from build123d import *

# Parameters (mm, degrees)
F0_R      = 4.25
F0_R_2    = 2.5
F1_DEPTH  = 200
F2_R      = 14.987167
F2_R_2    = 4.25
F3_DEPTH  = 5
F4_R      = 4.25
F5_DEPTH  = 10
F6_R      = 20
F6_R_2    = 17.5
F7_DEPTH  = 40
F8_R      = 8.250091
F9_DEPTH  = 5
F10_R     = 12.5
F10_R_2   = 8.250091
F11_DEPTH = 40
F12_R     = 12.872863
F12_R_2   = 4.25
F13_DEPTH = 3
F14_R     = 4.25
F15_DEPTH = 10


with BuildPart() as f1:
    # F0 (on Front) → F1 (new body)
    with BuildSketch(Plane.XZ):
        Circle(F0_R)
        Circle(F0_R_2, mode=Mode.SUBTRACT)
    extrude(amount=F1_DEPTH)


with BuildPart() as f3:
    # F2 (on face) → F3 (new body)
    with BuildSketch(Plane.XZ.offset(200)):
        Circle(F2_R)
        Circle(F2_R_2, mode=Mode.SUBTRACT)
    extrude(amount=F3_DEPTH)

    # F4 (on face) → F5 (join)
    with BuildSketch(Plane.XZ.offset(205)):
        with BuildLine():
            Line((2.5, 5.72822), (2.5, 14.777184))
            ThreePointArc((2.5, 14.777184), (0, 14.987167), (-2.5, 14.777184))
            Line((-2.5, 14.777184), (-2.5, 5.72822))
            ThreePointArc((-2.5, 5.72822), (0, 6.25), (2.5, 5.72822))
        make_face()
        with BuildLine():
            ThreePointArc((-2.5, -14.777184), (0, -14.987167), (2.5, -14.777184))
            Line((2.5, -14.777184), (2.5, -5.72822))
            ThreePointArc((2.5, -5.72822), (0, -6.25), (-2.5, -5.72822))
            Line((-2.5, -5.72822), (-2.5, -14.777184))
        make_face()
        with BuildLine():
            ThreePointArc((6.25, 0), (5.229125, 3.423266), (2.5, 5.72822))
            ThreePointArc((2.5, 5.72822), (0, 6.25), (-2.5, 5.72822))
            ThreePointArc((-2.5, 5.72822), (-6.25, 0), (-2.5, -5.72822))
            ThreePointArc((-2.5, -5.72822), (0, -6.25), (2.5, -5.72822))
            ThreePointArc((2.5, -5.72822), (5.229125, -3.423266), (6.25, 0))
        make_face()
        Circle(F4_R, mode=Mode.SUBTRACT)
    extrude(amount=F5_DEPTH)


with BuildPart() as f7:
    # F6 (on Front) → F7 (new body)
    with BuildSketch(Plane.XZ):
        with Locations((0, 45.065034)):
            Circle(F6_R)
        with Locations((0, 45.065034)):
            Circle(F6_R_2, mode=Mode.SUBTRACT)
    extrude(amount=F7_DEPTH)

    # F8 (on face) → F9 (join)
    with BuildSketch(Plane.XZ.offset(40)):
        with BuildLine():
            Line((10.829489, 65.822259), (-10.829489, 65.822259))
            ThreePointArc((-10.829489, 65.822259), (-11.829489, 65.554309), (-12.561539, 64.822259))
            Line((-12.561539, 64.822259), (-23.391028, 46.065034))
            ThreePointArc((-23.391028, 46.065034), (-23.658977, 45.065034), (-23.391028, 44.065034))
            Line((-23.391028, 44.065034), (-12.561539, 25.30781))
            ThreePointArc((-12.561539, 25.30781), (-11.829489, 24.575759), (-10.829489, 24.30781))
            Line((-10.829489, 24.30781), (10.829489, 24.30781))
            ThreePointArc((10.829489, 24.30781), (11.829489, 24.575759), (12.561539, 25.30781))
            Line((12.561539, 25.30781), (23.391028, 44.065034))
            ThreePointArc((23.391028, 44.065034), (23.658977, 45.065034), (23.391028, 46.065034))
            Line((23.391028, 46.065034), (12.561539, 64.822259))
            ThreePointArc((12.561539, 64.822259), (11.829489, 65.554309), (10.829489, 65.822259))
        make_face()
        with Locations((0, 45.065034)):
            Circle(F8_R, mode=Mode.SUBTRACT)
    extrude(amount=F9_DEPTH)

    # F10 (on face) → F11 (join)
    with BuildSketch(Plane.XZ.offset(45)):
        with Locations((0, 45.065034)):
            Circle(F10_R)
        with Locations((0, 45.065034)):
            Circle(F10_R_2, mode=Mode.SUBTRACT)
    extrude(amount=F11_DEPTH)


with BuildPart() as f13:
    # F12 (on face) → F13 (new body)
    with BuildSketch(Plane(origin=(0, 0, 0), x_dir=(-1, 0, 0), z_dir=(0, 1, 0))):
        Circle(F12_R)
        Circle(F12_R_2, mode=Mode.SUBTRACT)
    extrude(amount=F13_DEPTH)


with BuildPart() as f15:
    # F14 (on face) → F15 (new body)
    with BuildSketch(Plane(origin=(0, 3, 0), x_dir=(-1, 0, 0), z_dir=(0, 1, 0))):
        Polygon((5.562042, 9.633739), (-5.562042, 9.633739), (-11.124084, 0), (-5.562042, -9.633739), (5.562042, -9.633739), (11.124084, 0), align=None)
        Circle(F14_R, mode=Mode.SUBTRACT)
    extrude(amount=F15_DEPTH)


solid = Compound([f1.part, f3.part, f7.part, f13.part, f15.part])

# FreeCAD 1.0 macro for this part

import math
import FreeCAD as App
import Part
import Sketcher
Q = App.Units.Quantity

doc = App.newDocument("Part")
body = doc.addObject("PartDesign::Body", "Body")

sketch1 = doc.addObject("Sketcher::SketchObject", "Sketch")
body.addObject(sketch1)
sketch1.AttachmentSupport = (doc.XZ_Plane, [""])
sketch1.MapMode = "FlatFace"
sketch1.addGeometry([
    Part.Circle(App.Vector(0, 0, 0), App.Vector(0, 0, 1), 4.2),
    Part.Circle(App.Vector(0, 0, 0), App.Vector(0, 0, 1), 2.5),
], False)
sketch1.addConstraint([
    Sketcher.Constraint("Coincident", 0, 3, -1, 1),
    Sketcher.Constraint("Coincident", 1, 3, -1, 1),
    Sketcher.Constraint("Diameter", 1, Q("5 mm")),
    Sketcher.Constraint("Diameter", 0, Q("8.5 mm")),
])
pad1 = doc.addObject("PartDesign::Pad", "Pad")
body.addObject(pad1)
pad1.Profile = sketch1
pad1.Length = 200
body2 = doc.addObject("PartDesign::Body", "Body001")

sketch2 = doc.addObject("Sketcher::SketchObject", "Sketch001")
body2.addObject(sketch2)
sketch2.AttachmentSupport = (doc.getObject("XZ_Plane001"), [""])
sketch2.MapMode = "FlatFace"
sketch2.AttachmentOffset = App.Placement(App.Vector(0, 0, 200), App.Rotation())
sketch2.addGeometry([
    Part.Circle(App.Vector(0, 0, 0), App.Vector(0, 0, 1), 15),
    Part.Circle(App.Vector(0, 0, 0), App.Vector(0, 0, 1), 4.2),
], False)
sketch2.addConstraint([
    Sketcher.Constraint("Coincident", 0, 3, -1, 1),
    Sketcher.Constraint("Coincident", 1, 3, -1, 1),
    Sketcher.Constraint("Diameter", 1, Q("8.5 mm")),
    Sketcher.Constraint("Diameter", 0, Q("29.974334 mm")),
])
pad2 = doc.addObject("PartDesign::Pad", "Pad001")
body2.addObject(pad2)
pad2.Profile = sketch2
pad2.Length = 5

sketch3 = doc.addObject("Sketcher::SketchObject", "Sketch002")
body2.addObject(sketch3)
sketch3.AttachmentSupport = (doc.getObject("XZ_Plane001"), [""])
sketch3.MapMode = "FlatFace"
sketch3.AttachmentOffset = App.Placement(App.Vector(0, 0, 205), App.Rotation())
sketch3.addGeometry([
    Part.LineSegment(App.Vector(2.5, 5.72822, 0), App.Vector(2.5, 14.777184, 0)),
    Part.ArcOfCircle(Part.Circle(App.Vector(0, 0.000018, 0), App.Vector(0, 0, 1), 14.987149), math.radians(80.397627), math.radians(99.602373)),
    Part.LineSegment(App.Vector(-2.5, 14.777184, 0), App.Vector(-2.5, 5.72822, 0)),
    Part.ArcOfCircle(Part.Circle(App.Vector(0.000001, 0, 0), App.Vector(0, 0, 1), 6.250001), math.radians(113.578182), math.radians(246.421818)),
    Part.LineSegment(App.Vector(-2.5, -5.72822, 0), App.Vector(-2.5, -14.777184, 0)),
    Part.ArcOfCircle(Part.Circle(App.Vector(0, -0.000018, 0), App.Vector(0, 0, 1), 14.987149), math.radians(-99.602373), math.radians(-80.397627)),
    Part.LineSegment(App.Vector(2.5, -14.777184, 0), App.Vector(2.5, -5.72822, 0)),
    Part.ArcOfCircle(Part.Circle(App.Vector(-0.000002, 0.000001, 0), App.Vector(0, 0, 1), 6.250002), math.radians(-66.421811), math.radians(-0.000007)),
    Part.ArcOfCircle(Part.Circle(App.Vector(-0.000002, -0.000001, 0), App.Vector(0, 0, 1), 6.250002), math.radians(0.000007), math.radians(66.421811)),
    Part.Circle(App.Vector(0, 0, 0), App.Vector(0, 0, 1), 4.25),
], False)
sketch3.addConstraint([
    Sketcher.Constraint("Coincident", 0, 2, 1, 1),
    Sketcher.Constraint("Coincident", 1, 2, 2, 1),
    Sketcher.Constraint("Coincident", 2, 2, 3, 1),
    Sketcher.Constraint("Coincident", 3, 2, 4, 1),
    Sketcher.Constraint("Coincident", 4, 2, 5, 1),
    Sketcher.Constraint("Coincident", 5, 2, 6, 1),
    Sketcher.Constraint("Coincident", 6, 2, 7, 1),
    Sketcher.Constraint("Tangent", 7, 2, 8, 1),
    Sketcher.Constraint("Coincident", 8, 2, 0, 1),
    Sketcher.Constraint("Vertical", 0),
    Sketcher.Constraint("Vertical", 2),
    Sketcher.Constraint("Vertical", 4),
    Sketcher.Constraint("Vertical", 6),
    Sketcher.Constraint("Coincident", 3, 3, -1, 1),
    Sketcher.Constraint("Coincident", 7, 3, -1, 1),
    Sketcher.Constraint("Coincident", 9, 3, -1, 1),
    Sketcher.Constraint("Equal", 1, 5),
    Sketcher.Constraint("Equal", 3, 7),
    Sketcher.Constraint("Equal", 7, 8),
    Sketcher.Constraint("Symmetric", 1, 3, 5, 3, -1, 1),
    Sketcher.Constraint("Symmetric", 0, 2, 1, 2, -2),
    Sketcher.Constraint("PointOnObject", 7, 2, -1),
    Sketcher.Constraint("Horizontal", 4, 2, 5, 2),
    Sketcher.Constraint("Vertical", 2, 2, 3, 2),
    Sketcher.Constraint("Diameter", 9, Q("8.5 mm")),
    Sketcher.Constraint("Radius", 3, Q("6.250001 mm")),
    Sketcher.Constraint("DistanceX", 1, 2, 0, 2, Q("5 mm")),
    Sketcher.Constraint("Radius", 1, Q("14.987149 mm")),
    Sketcher.Constraint("DistanceY", 1, 3, 2, 2, Q("5.728202 mm")),
])
pad3 = doc.addObject("PartDesign::Pad", "Pad002")
body2.addObject(pad3)
pad3.Profile = sketch3
pad3.Length = 10
body3 = doc.addObject("PartDesign::Body", "Body002")

sketch4 = doc.addObject("Sketcher::SketchObject", "Sketch003")
body3.addObject(sketch4)
sketch4.AttachmentSupport = (doc.getObject("XZ_Plane002"), [""])
sketch4.MapMode = "FlatFace"
sketch4.addGeometry([
    Part.Circle(App.Vector(0, 45, 0), App.Vector(0, 0, 1), 20),
    Part.Circle(App.Vector(0, 45, 0), App.Vector(0, 0, 1), 18),
], False)
sketch4.addConstraint([
    Sketcher.Constraint("Coincident", 1, 3, 0, 3),
    Sketcher.Constraint("PointOnObject", 0, 3, -2),
    Sketcher.Constraint("Diameter", 0, Q("40 mm")),
    Sketcher.Constraint("Diameter", 1, Q("35 mm")),
    Sketcher.Constraint("DistanceY", -1, 1, 0, 3, Q("45.065034 mm")),
])
pad4 = doc.addObject("PartDesign::Pad", "Pad003")
body3.addObject(pad4)
pad4.Profile = sketch4
pad4.Length = 40

sketch5 = doc.addObject("Sketcher::SketchObject", "Sketch004")
body3.addObject(sketch5)
sketch5.AttachmentSupport = (doc.getObject("XZ_Plane002"), [""])
sketch5.MapMode = "FlatFace"
sketch5.AttachmentOffset = App.Placement(App.Vector(0, 0, 40), App.Rotation())
sketch5.addGeometry([
    Part.LineSegment(App.Vector(10.8, 65.8, 0), App.Vector(-10.8, 65.8, 0)),
    Part.ArcOfCircle(Part.Circle(App.Vector(-10.8, 63.8, 0), App.Vector(0, 0, 1), 2), math.radians(90), math.radians(150)),
    Part.LineSegment(App.Vector(-12.6, 64.8, 0), App.Vector(-23.4, 46.1, 0)),
    Part.ArcOfCircle(Part.Circle(App.Vector(-21.7, 45.1, 0), App.Vector(0, 0, 1), 2), math.radians(150), math.radians(210)),
    Part.LineSegment(App.Vector(-23.4, 44.1, 0), App.Vector(-12.6, 25.3, 0)),
    Part.ArcOfCircle(Part.Circle(App.Vector(-10.8, 26.3, 0), App.Vector(0, 0, 1), 2), math.radians(-150), math.radians(-90)),
    Part.LineSegment(App.Vector(-10.8, 24.3, 0), App.Vector(10.8, 24.3, 0)),
    Part.ArcOfCircle(Part.Circle(App.Vector(10.8, 26.3, 0), App.Vector(0, 0, 1), 2), math.radians(-90), math.radians(-30)),
    Part.LineSegment(App.Vector(12.6, 25.3, 0), App.Vector(23.4, 44.1, 0)),
    Part.ArcOfCircle(Part.Circle(App.Vector(21.7, 45.1, 0), App.Vector(0, 0, 1), 2), math.radians(-30), math.radians(30)),
    Part.LineSegment(App.Vector(23.4, 46.1, 0), App.Vector(12.6, 64.8, 0)),
    Part.ArcOfCircle(Part.Circle(App.Vector(10.8, 63.8, 0), App.Vector(0, 0, 1), 2), math.radians(30), math.radians(90)),
    Part.Circle(App.Vector(0, 45.1, 0), App.Vector(0, 0, 1), 8.3),
], False)
sketch5.addConstraint([
    Sketcher.Constraint("Tangent", 0, 2, 1, 1),
    Sketcher.Constraint("Tangent", 1, 2, 2, 1),
    Sketcher.Constraint("Tangent", 2, 2, 3, 1),
    Sketcher.Constraint("Tangent", 3, 2, 4, 1),
    Sketcher.Constraint("Tangent", 4, 2, 5, 1),
    Sketcher.Constraint("Tangent", 5, 2, 6, 1),
    Sketcher.Constraint("Tangent", 6, 2, 7, 1),
    Sketcher.Constraint("Tangent", 7, 2, 8, 1),
    Sketcher.Constraint("Tangent", 8, 2, 9, 1),
    Sketcher.Constraint("Tangent", 9, 2, 10, 1),
    Sketcher.Constraint("Tangent", 10, 2, 11, 1),
    Sketcher.Constraint("Tangent", 11, 2, 0, 1),
    Sketcher.Constraint("Horizontal", 0),
    Sketcher.Constraint("Horizontal", 6),
    Sketcher.Constraint("Equal", 1, 3),
    Sketcher.Constraint("Equal", 5, 7),
    Sketcher.Constraint("Equal", 3, 9),
    Sketcher.Constraint("Equal", 9, 11),
    Sketcher.Constraint("Symmetric", 3, 3, 9, 3, -2),
    Sketcher.Constraint("PointOnObject", 12, 3, -2),
    Sketcher.Constraint("Parallel", 2, 8),
    Sketcher.Constraint("Parallel", 4, 10),
    Sketcher.Constraint("Horizontal", 9, 3, 12, 3),
    Sketcher.Constraint("Horizontal", 4, 2, 7, 2),
    Sketcher.Constraint("Vertical", 5, 3, 0, 2),
    Sketcher.Constraint("Vertical", 1, 2, 4, 2),
    Sketcher.Constraint("Radius", 1, Q("2.000002 mm")),
    Sketcher.Constraint("Angle", 2, Q("-120 deg")),
    Sketcher.Constraint("Diameter", 12, Q("16.500182 mm")),
    Sketcher.Constraint("DistanceX", 0, 2, 0, 1, Q("21.658978 mm")),
    Sketcher.Constraint("DistanceY", -1, 1, 0, 2, Q("65.822259 mm")),
    Sketcher.Constraint("DistanceX", 3, 2, -1, 1, Q("23.391028 mm")),
])
pad5 = doc.addObject("PartDesign::Pad", "Pad004")
body3.addObject(pad5)
pad5.Profile = sketch5
pad5.Length = 5

sketch6 = doc.addObject("Sketcher::SketchObject", "Sketch005")
body3.addObject(sketch6)
sketch6.AttachmentSupport = (doc.getObject("XZ_Plane002"), [""])
sketch6.MapMode = "FlatFace"
sketch6.AttachmentOffset = App.Placement(App.Vector(0, 0, 45), App.Rotation())
sketch6.addGeometry([
    Part.Circle(App.Vector(0, 45, 0), App.Vector(0, 0, 1), 12),
    Part.Circle(App.Vector(0, 45, 0), App.Vector(0, 0, 1), 8),
], False)
sketch6.addConstraint([
    Sketcher.Constraint("Coincident", 1, 3, 0, 3),
    Sketcher.Constraint("PointOnObject", 0, 3, -2),
    Sketcher.Constraint("Diameter", 0, Q("25 mm")),
    Sketcher.Constraint("Diameter", 1, Q("16.500182 mm")),
    Sketcher.Constraint("DistanceY", -1, 1, 0, 3, Q("45.065034 mm")),
])
pad6 = doc.addObject("PartDesign::Pad", "Pad005")
body3.addObject(pad6)
pad6.Profile = sketch6
pad6.Length = 40
body4 = doc.addObject("PartDesign::Body", "Body003")

sketch7 = doc.addObject("Sketcher::SketchObject", "Sketch006")
body4.addObject(sketch7)
sketch7.AttachmentSupport = (doc.getObject("XZ_Plane003"), [""])
sketch7.MapMode = "FlatFace"
sketch7.addGeometry([
    Part.Circle(App.Vector(0, 0, 0), App.Vector(0, 0, 1), 12.9),
    Part.Circle(App.Vector(0, 0, 0), App.Vector(0, 0, 1), 4.2),
], False)
sketch7.addConstraint([
    Sketcher.Constraint("Coincident", 0, 3, -1, 1),
    Sketcher.Constraint("Coincident", 1, 3, -1, 1),
    Sketcher.Constraint("Diameter", 1, Q("8.5 mm")),
    Sketcher.Constraint("Diameter", 0, Q("25.745726 mm")),
])
pad7 = doc.addObject("PartDesign::Pad", "Pad006")
body4.addObject(pad7)
pad7.Profile = sketch7
pad7.Length = 3
pad7.Reversed = True
body5 = doc.addObject("PartDesign::Body", "Body004")

sketch8 = doc.addObject("Sketcher::SketchObject", "Sketch007")
body5.addObject(sketch8)
sketch8.AttachmentSupport = (doc.getObject("XZ_Plane004"), [""])
sketch8.MapMode = "FlatFace"
sketch8.AttachmentOffset = App.Placement(App.Vector(0, 0, -3), App.Rotation())
sketch8.addGeometry([
    Part.LineSegment(App.Vector(-5.6, 9.6, 0), App.Vector(5.6, 9.6, 0)),
    Part.LineSegment(App.Vector(5.6, 9.6, 0), App.Vector(11.1, 0, 0)),
    Part.LineSegment(App.Vector(11.1, 0, 0), App.Vector(5.6, -9.6, 0)),
    Part.LineSegment(App.Vector(5.6, -9.6, 0), App.Vector(-5.6, -9.6, 0)),
    Part.LineSegment(App.Vector(-5.6, -9.6, 0), App.Vector(-11.1, 0, 0)),
    Part.LineSegment(App.Vector(-11.1, 0, 0), App.Vector(-5.6, 9.6, 0)),
    Part.Circle(App.Vector(0, 0, 0), App.Vector(0, 0, 1), 4.2),
], False)
sketch8.addConstraint([
    Sketcher.Constraint("Coincident", 0, 2, 1, 1),
    Sketcher.Constraint("Coincident", 1, 2, 2, 1),
    Sketcher.Constraint("Coincident", 2, 2, 3, 1),
    Sketcher.Constraint("Coincident", 3, 2, 4, 1),
    Sketcher.Constraint("Coincident", 4, 2, 5, 1),
    Sketcher.Constraint("Coincident", 5, 2, 0, 1),
    Sketcher.Constraint("Horizontal", 0),
    Sketcher.Constraint("Horizontal", 3),
    Sketcher.Constraint("Coincident", 6, 3, -1, 1),
    Sketcher.Constraint("Symmetric", 0, 2, 3, 2, -1, 1),
    Sketcher.Constraint("Symmetric", 1, 2, 4, 2, -1, 1),
    Sketcher.Constraint("PointOnObject", 1, 2, -1),
    Sketcher.Constraint("Parallel", 2, 5),
    Sketcher.Constraint("Vertical", 0, 2, 2, 2),
    Sketcher.Constraint("Diameter", 6, Q("8.5 mm")),
    Sketcher.Constraint("Angle", 1, Q("-59.999999 deg")),
    Sketcher.Constraint("DistanceX", 0, 1, 0, 2, Q("11.124084 mm")),
    Sketcher.Constraint("DistanceY", -1, 1, 0, 2, Q("9.633739 mm")),
])
pad8 = doc.addObject("PartDesign::Pad", "Pad007")
body5.addObject(pad8)
pad8.Profile = sketch8
pad8.Length = 10
pad8.Reversed = True

doc.recompute()
